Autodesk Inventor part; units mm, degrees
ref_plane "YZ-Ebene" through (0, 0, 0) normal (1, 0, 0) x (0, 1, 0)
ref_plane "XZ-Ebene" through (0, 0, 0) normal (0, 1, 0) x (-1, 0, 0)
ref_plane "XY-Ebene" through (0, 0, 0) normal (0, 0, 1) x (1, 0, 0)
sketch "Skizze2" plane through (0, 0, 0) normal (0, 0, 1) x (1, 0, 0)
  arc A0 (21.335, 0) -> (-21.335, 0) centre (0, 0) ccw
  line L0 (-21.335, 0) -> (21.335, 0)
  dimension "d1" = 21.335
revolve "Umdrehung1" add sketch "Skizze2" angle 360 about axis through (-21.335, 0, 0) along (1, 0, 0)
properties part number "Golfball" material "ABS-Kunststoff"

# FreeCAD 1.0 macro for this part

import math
import FreeCAD as App
import Part
import Sketcher

V = App.Vector

doc = App.newDocument("Part")
body = doc.addObject("PartDesign::Body", "Body")

sketch1 = body.newObject("Sketcher::SketchObject", "Sketch")
sketch1.AttachmentSupport = (doc.getObject("XY_Plane"), [""])
sketch1.MapMode = "FlatFace"
sketch1.addGeometry(Part.LineSegment(V(-21.335, 0, 0), V(21.335, 0, 0)), False)
sketch1.addGeometry(Part.ArcOfCircle(Part.Circle(V(0, 0, 0), V(0, 0, 1), 21.335), math.radians(0), math.radians(180)), False)
sketch1.addConstraint(Sketcher.Constraint("Coincident", 0, 1, 1, 2))
sketch1.addConstraint(Sketcher.Constraint("Coincident", 1, 1, 0, 2))
sketch1.addConstraint(Sketcher.Constraint("Horizontal", 0))
sketch1.addConstraint(Sketcher.Constraint("Coincident", 1, 3, -1, 1))
sketch1.addConstraint(Sketcher.Constraint("PointOnObject", 0, 1, -1))
sketch1.addConstraint(Sketcher.Constraint("Radius", 1, 21.335))
revolution = body.newObject("PartDesign::Revolution", "Revolution")
revolution.Profile = sketch1
revolution.ReferenceAxis = (sketch1, ["H_Axis"])
revolution.Angle = 360

doc.recompute()
